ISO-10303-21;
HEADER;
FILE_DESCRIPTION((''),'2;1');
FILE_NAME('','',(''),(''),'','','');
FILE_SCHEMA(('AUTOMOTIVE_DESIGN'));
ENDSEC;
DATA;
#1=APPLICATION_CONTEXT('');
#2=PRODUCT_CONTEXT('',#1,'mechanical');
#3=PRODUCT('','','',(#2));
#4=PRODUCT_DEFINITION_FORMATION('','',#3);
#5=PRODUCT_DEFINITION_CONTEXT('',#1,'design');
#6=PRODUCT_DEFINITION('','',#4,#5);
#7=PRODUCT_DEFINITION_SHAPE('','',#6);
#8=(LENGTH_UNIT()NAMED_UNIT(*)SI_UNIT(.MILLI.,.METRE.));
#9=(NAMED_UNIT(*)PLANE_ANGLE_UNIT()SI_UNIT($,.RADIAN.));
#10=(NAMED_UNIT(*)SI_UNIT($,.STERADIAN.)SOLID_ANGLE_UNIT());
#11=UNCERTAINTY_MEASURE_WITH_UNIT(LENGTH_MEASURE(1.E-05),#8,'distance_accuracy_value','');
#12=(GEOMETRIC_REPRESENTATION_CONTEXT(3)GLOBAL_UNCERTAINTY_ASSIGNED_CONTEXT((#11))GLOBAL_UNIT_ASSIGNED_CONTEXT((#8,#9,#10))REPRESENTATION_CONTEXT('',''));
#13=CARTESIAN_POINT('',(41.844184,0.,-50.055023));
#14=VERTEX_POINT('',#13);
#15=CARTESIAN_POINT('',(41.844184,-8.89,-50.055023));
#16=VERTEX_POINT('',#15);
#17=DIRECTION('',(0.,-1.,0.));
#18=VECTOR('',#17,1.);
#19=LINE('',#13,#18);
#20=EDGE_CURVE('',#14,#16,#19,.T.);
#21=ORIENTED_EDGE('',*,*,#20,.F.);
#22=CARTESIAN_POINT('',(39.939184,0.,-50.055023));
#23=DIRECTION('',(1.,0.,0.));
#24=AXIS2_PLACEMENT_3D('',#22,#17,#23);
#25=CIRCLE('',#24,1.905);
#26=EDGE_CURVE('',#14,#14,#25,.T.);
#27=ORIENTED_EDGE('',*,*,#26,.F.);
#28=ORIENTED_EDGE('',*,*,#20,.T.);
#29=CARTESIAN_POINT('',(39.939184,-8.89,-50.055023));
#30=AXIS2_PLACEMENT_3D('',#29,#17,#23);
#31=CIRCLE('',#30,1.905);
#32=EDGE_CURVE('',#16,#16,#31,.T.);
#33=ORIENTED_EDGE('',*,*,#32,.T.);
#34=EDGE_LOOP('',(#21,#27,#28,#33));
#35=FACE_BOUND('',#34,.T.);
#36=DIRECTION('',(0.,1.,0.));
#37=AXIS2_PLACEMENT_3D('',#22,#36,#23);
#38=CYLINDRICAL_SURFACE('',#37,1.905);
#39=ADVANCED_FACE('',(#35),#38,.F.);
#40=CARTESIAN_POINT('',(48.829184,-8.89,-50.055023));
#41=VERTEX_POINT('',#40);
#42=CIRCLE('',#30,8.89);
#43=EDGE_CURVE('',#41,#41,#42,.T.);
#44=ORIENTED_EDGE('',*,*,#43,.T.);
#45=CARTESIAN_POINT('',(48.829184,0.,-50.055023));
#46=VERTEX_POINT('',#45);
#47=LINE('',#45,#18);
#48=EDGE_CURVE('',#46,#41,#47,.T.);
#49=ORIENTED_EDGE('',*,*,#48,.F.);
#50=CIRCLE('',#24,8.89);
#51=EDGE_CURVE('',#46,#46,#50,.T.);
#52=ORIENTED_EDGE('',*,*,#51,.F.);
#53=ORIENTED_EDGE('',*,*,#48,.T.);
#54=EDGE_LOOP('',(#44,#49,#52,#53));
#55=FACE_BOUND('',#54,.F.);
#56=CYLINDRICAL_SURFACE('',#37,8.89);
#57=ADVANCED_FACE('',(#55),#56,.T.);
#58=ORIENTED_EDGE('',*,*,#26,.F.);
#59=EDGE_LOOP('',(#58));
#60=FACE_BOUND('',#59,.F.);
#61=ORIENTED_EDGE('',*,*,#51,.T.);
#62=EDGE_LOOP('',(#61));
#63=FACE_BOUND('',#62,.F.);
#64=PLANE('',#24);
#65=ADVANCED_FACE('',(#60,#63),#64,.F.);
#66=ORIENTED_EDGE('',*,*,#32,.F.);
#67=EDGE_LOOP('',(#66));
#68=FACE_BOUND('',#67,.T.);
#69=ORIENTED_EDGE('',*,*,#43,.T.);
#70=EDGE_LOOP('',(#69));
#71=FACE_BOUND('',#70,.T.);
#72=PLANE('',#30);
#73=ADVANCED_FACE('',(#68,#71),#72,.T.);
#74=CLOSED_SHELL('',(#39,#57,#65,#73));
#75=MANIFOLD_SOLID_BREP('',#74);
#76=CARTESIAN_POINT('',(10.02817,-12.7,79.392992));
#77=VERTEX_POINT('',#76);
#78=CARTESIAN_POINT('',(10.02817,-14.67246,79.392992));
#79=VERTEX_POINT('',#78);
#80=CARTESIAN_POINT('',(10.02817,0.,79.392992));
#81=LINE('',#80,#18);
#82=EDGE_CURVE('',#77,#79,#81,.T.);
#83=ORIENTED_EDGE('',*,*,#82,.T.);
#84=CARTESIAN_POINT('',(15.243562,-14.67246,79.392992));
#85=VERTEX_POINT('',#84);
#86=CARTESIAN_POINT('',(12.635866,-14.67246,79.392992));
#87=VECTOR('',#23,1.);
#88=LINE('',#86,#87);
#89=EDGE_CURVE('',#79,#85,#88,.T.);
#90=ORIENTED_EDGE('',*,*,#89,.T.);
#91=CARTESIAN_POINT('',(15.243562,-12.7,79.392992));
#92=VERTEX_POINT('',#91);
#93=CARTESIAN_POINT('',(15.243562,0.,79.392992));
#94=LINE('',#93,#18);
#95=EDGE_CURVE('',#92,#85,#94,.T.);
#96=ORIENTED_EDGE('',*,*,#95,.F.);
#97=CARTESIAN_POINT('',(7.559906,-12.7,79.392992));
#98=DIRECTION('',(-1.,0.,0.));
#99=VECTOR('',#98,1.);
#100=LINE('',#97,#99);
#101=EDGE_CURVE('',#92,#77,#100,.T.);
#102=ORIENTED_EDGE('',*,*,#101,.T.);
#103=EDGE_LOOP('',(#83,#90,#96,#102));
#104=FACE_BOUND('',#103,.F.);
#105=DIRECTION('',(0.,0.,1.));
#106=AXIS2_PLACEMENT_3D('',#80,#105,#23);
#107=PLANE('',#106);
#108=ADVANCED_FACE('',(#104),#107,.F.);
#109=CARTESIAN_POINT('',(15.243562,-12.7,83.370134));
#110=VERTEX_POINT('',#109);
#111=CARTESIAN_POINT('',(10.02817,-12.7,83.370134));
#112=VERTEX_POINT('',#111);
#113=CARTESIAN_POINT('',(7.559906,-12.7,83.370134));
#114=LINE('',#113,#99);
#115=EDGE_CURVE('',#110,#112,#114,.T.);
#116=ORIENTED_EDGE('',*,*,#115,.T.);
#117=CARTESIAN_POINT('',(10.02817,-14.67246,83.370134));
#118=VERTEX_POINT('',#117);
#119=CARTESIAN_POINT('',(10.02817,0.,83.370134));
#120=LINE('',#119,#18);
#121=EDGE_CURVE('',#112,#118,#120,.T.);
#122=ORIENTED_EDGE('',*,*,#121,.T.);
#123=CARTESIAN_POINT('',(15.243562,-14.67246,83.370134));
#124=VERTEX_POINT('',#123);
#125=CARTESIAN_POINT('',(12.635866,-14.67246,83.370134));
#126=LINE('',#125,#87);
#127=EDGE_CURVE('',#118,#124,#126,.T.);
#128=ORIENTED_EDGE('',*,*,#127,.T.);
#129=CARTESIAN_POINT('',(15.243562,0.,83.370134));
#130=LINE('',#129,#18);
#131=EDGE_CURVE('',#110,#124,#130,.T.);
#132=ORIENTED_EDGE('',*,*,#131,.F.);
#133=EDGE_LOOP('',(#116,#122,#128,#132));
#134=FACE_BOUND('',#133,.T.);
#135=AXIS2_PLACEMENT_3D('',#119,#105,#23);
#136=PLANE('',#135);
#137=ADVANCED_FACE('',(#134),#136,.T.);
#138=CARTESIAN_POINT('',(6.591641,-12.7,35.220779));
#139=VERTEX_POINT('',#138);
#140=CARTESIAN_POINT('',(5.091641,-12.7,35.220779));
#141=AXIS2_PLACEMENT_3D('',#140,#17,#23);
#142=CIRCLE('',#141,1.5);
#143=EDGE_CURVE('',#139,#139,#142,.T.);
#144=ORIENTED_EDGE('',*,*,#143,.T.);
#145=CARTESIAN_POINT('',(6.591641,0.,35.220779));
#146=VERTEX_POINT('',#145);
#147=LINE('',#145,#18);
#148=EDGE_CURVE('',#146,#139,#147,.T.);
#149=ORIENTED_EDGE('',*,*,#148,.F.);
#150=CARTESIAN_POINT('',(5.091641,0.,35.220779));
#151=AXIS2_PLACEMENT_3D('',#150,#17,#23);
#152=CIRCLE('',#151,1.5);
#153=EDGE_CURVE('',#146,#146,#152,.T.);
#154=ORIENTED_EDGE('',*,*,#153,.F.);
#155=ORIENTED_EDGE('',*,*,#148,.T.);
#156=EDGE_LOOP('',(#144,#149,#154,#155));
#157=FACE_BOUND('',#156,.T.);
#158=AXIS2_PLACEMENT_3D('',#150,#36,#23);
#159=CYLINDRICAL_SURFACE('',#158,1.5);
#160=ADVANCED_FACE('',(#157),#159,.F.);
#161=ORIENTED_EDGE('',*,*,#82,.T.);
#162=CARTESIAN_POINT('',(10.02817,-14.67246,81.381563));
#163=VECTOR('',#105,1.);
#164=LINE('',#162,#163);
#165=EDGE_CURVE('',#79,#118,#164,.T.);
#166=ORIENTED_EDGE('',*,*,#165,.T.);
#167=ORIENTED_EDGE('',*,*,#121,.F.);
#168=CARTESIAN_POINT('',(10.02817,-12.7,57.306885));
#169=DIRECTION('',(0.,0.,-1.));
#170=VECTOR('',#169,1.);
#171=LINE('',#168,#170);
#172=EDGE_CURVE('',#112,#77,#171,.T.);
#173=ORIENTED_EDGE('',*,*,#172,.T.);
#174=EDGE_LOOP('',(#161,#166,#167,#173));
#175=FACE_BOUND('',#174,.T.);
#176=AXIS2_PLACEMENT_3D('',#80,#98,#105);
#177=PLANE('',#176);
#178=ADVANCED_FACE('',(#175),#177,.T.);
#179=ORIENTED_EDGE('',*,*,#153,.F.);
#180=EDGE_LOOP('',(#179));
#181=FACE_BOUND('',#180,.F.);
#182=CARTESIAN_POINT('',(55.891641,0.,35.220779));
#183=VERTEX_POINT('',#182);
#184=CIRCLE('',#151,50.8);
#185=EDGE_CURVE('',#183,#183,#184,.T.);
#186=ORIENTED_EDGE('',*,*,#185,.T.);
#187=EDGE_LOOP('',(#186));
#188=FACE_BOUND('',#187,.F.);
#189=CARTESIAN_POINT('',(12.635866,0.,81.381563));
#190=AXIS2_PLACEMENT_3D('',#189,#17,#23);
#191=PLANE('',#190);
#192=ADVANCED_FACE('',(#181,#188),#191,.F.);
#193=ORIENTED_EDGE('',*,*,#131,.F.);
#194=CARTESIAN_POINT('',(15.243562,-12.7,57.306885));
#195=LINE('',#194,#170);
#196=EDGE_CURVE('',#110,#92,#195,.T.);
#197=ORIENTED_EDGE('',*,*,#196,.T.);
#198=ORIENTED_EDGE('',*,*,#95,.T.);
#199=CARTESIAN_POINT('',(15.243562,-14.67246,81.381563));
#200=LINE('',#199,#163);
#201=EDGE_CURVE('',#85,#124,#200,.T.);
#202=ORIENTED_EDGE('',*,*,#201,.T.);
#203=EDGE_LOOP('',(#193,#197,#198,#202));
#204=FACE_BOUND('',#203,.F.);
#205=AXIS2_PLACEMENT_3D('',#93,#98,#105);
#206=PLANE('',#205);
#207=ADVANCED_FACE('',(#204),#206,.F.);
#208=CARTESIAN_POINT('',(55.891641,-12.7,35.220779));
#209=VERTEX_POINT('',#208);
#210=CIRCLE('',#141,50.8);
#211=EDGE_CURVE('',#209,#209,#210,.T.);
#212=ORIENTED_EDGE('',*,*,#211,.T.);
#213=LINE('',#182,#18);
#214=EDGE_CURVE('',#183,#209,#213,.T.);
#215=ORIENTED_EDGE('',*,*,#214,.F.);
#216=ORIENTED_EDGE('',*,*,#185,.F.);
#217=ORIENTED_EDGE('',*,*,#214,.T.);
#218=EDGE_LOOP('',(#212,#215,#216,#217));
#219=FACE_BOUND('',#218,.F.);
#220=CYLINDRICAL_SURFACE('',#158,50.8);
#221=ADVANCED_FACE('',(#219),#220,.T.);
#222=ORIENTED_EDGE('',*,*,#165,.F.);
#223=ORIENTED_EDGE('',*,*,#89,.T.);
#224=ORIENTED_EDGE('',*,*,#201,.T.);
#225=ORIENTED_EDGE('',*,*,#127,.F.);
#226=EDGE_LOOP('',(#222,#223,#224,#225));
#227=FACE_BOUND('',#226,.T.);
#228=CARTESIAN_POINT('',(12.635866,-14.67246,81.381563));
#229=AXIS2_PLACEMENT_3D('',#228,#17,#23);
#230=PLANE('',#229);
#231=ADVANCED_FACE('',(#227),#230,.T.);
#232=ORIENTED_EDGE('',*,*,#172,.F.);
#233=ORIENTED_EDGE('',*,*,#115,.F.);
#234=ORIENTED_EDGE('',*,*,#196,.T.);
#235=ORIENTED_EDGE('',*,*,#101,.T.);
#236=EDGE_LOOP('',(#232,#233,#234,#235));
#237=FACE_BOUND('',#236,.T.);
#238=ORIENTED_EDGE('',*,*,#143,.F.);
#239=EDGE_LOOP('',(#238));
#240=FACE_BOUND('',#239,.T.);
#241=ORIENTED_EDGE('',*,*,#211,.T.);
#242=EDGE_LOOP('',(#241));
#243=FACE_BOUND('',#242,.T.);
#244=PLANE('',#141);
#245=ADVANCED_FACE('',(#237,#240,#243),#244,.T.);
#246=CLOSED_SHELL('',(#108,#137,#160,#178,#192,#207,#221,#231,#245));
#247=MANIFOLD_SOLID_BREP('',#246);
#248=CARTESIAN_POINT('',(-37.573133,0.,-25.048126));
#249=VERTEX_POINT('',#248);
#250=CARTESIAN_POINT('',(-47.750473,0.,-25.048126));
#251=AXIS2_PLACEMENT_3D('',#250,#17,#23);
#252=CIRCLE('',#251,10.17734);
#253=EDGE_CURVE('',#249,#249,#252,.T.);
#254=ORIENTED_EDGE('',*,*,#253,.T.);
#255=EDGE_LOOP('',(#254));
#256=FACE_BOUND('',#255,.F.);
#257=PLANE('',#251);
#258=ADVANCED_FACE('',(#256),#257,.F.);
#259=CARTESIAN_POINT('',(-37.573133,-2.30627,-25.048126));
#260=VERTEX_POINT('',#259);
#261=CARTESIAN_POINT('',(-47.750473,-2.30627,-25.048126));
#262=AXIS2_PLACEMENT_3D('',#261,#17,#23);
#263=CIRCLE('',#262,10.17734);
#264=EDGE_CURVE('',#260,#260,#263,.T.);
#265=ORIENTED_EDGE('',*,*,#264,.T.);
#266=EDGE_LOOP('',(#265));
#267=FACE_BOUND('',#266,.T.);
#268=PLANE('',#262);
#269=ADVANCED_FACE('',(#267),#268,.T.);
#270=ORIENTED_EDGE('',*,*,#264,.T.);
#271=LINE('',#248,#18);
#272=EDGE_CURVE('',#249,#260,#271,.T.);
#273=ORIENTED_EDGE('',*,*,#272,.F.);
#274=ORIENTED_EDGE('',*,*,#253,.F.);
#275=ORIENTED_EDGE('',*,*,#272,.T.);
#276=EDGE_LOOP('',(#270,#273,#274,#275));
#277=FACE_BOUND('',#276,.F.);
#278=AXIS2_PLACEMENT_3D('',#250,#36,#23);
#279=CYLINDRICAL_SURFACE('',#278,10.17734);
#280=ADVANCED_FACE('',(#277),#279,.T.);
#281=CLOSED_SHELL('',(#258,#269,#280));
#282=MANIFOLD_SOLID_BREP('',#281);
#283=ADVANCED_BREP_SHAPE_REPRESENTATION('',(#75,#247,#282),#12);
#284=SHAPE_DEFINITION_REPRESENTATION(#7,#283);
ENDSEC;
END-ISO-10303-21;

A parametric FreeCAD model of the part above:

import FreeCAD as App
import Part
import Sketcher
from FreeCAD import Vector
Q = App.Units.Quantity

doc = App.newDocument("Part")
params = doc.addObject("Spreadsheet::Sheet", "Params")
for row, (alias, value) in enumerate([
    ("sketch1_diameter", "4 in"),
    ("pad1_length", "0.5 in"),
    ("pad2_length", "14.67246 mm"),
    ("pad3_length", "2.30627 mm"),
    ("sketch4_diameter", "0.7 in"),
    ("sketch4_diameter2", "0.15 in"),
    ("pad4_length", "0.35 in"),
], start=1):
    params.set(f"A{row}", alias)
    params.set(f"B{row}", "=" + value)
    params.setAlias(f"B{row}", alias)

body = doc.addObject("PartDesign::Body", "Body")

sketch1 = doc.addObject("Sketcher::SketchObject", "Sketch")
body.addObject(sketch1)
sketch1.AttachmentSupport = (doc.XZ_Plane, [""])
sketch1.MapMode = "FlatFace"
sketch1.addGeometry([
    Part.Circle(Vector(5.091641, 35.220779, 0), Vector(0, 0, 1), 50.8),
    Part.Circle(Vector(5.091641, 35.220779, 0), Vector(0, 0, 1), 1.5),
], False)
sketch1.addConstraint([
    Sketcher.Constraint("Coincident", 1, 3, 0, 3),
    Sketcher.Constraint("Diameter", 0, Q("4 in")),
    Sketcher.Constraint("Diameter", 1, Q("3 mm")),
    Sketcher.Constraint("DistanceX", -1, 1, 0, 3, Q("5.091641 mm")),
    Sketcher.Constraint("DistanceY", -1, 1, 0, 3, Q("35.220779 mm")),
])
sketch1.setExpression("Constraints[1]", "Params.sketch1_diameter")
pad1 = doc.addObject("PartDesign::Pad", "Pad")
body.addObject(pad1)
pad1.Profile = sketch1
pad1.setExpression("Length", "Params.pad1_length")

sketch2 = doc.addObject("Sketcher::SketchObject", "Sketch001")
body.addObject(sketch2)
sketch2.AttachmentSupport = (doc.XZ_Plane, [""])
sketch2.MapMode = "FlatFace"
sketch2.addGeometry([
    Part.LineSegment(Vector(10.02817, 83.370134, 0), Vector(10.02817, 79.392992, 0)),
    Part.LineSegment(Vector(10.02817, 79.392992, 0), Vector(15.243562, 79.392992, 0)),
    Part.LineSegment(Vector(15.243562, 79.392992, 0), Vector(15.243562, 83.370134, 0)),
    Part.LineSegment(Vector(15.243562, 83.370134, 0), Vector(10.02817, 83.370134, 0)),
], False)
sketch2.addConstraint([
    Sketcher.Constraint("Coincident", 0, 2, 1, 1),
    Sketcher.Constraint("Coincident", 1, 2, 2, 1),
    Sketcher.Constraint("Coincident", 2, 2, 3, 1),
    Sketcher.Constraint("Coincident", 3, 2, 0, 1),
    Sketcher.Constraint("Vertical", 0),
    Sketcher.Constraint("Horizontal", 1),
    Sketcher.Constraint("Vertical", 2),
    Sketcher.Constraint("Horizontal", 3),
    Sketcher.Constraint("DistanceX", 1, 1, 1, 2, Q("5.215391 mm")),
    Sketcher.Constraint("DistanceY", 0, 2, 0, 1, Q("3.977142 mm")),
    Sketcher.Constraint("DistanceX", -1, 1, 0, 2, Q("10.02817 mm")),
    Sketcher.Constraint("DistanceY", -1, 1, 0, 2, Q("79.392992 mm")),
])
pad2 = doc.addObject("PartDesign::Pad", "Pad001")
body.addObject(pad2)
pad2.Profile = sketch2
pad2.setExpression("Length", "Params.pad2_length")
body2 = doc.addObject("PartDesign::Body", "Body001")

sketch3 = doc.addObject("Sketcher::SketchObject", "Sketch002")
body2.addObject(sketch3)
sketch3.AttachmentSupport = (doc.getObject("XZ_Plane001"), [""])
sketch3.MapMode = "FlatFace"
sketch3.addGeometry(Part.Circle(Vector(-47.750473, -25.048126, 0), Vector(0, 0, 1), 10.17734), False)
sketch3.addConstraint([
    Sketcher.Constraint("Diameter", 0, Q("20.35468 mm")),
    Sketcher.Constraint("DistanceX", 0, 3, -1, 1, Q("47.750473 mm")),
    Sketcher.Constraint("DistanceY", 0, 3, -1, 1, Q("25.048126 mm")),
])
pad3 = doc.addObject("PartDesign::Pad", "Pad002")
body2.addObject(pad3)
pad3.Profile = sketch3
pad3.setExpression("Length", "Params.pad3_length")
body3 = doc.addObject("PartDesign::Body", "Body002")

sketch4 = doc.addObject("Sketcher::SketchObject", "Sketch003")
body3.addObject(sketch4)
sketch4.AttachmentSupport = (doc.getObject("XZ_Plane002"), [""])
sketch4.MapMode = "FlatFace"
sketch4.addGeometry([
    Part.Circle(Vector(39.939184, -50.055023, 0), Vector(0, 0, 1), 8.89),
    Part.Circle(Vector(39.939184, -50.055023, 0), Vector(0, 0, 1), 1.905),
], False)
sketch4.addConstraint([
    Sketcher.Constraint("Coincident", 1, 3, 0, 3),
    Sketcher.Constraint("Diameter", 0, Q("0.7 in")),
    Sketcher.Constraint("Diameter", 1, Q("0.15 in")),
    Sketcher.Constraint("DistanceX", -1, 1, 0, 3, Q("39.939184 mm")),
    Sketcher.Constraint("DistanceY", 0, 3, -1, 1, Q("50.055023 mm")),
])
sketch4.setExpression("Constraints[1]", "Params.sketch4_diameter")
sketch4.setExpression("Constraints[2]", "Params.sketch4_diameter2")
pad4 = doc.addObject("PartDesign::Pad", "Pad003")
body3.addObject(pad4)
pad4.Profile = sketch4
pad4.setExpression("Length", "Params.pad4_length")

doc.recompute()
